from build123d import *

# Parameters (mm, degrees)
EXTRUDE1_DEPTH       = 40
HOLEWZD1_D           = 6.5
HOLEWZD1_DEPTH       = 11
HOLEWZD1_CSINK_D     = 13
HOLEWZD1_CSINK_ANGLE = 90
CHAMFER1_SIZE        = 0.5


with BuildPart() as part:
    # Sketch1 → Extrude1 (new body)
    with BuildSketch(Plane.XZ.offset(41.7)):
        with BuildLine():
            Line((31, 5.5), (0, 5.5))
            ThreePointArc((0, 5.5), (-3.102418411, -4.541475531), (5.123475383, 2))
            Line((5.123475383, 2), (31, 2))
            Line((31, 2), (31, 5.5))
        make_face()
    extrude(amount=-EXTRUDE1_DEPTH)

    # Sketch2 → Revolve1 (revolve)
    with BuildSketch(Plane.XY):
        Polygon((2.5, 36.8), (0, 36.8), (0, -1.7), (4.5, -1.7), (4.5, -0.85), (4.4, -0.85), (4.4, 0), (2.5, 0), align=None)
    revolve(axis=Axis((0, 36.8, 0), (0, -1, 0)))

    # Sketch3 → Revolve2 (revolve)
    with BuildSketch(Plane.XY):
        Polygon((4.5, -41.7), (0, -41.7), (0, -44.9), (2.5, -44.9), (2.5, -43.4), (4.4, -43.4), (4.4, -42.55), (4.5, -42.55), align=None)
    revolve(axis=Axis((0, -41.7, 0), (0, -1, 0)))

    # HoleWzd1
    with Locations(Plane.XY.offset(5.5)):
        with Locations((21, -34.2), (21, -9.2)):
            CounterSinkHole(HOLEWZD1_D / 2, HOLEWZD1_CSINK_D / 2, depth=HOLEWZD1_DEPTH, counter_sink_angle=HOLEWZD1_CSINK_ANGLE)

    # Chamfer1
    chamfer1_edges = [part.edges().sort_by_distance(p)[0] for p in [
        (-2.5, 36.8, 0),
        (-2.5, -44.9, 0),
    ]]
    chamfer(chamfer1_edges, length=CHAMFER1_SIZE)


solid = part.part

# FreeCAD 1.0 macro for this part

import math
import FreeCAD as App
import Part
import Sketcher

V = App.Vector
Q = App.Units.Quantity


def edges_at(feature, points):
    """Names of the edges that pass closest to the given points."""
    edges = feature.Shape.Edges
    near = lambda p: min(range(len(edges)), key=lambda i: edges[i].distToShape(Part.Vertex(*p))[0])
    return sorted({f"Edge{near(p) + 1}" for p in points})


def add_polygon(sketch, points):
    """Adds a closed chain of lines whose ends are joined by coincident constraints."""
    first, n = sketch.GeometryCount, len(points)
    for a, b in zip(points, points[1:] + points[:1]):
        sketch.addGeometry(Part.LineSegment(App.Vector(*a, 0), App.Vector(*b, 0)), False)
    for i in range(n):
        sketch.addConstraint(Sketcher.Constraint("Coincident", first + i, 2, first + (i + 1) % n, 1))

doc = App.newDocument("Part")
body = doc.addObject("PartDesign::Body", "Body")

# Sketch on XZ plane
sketch1 = body.newObject("Sketcher::SketchObject", "Sketch")
sketch1.AttachmentSupport = (doc.getObject("XZ_Plane"), [""])
sketch1.MapMode = "FlatFace"
sketch1.AttachmentOffset = App.Placement(V(0, 0, 41.7), App.Rotation())
sketch1.addGeometry([
    Part.LineSegment(V(31, 5.5, 0), V(0, 5.5, 0)),
    Part.ArcOfCircle(Part.Circle(V(0, 0, 0), V(0, 0, 1), 5.5), math.radians(90), math.radians(381.323686)),
    Part.LineSegment(V(5.123475, 2, 0), V(31, 2, 0)),
    Part.LineSegment(V(31, 2, 0), V(31, 5.5, 0)),
], False)
sketch1.addConstraint([
    Sketcher.Constraint("Tangent", 0, 2, 1, 1),
    Sketcher.Constraint("Coincident", 1, 2, 2, 1),
    Sketcher.Constraint("Coincident", 2, 2, 3, 1),
    Sketcher.Constraint("Coincident", 3, 2, 0, 1),
    Sketcher.Constraint("Horizontal", 0),
    Sketcher.Constraint("Horizontal", 2),
    Sketcher.Constraint("Vertical", 3),
    Sketcher.Constraint("Coincident", 1, 3, -1, 1),
    Sketcher.Constraint("Radius", 1, Q("5.5 mm")),
    Sketcher.Constraint("DistanceX", 0, 2, 0, 1, Q("31 mm")),
    Sketcher.Constraint("DistanceY", 3, 1, 3, 2, Q("3.5 mm")),
])
pad1 = body.newObject("PartDesign::Pad", "Pad")
pad1.Profile = sketch1
pad1.Length = 40
pad1.Reversed = True

# Sketch on XY plane
sketch2 = body.newObject("Sketcher::SketchObject", "Sketch001")
sketch2.AttachmentSupport = (doc.getObject("XY_Plane"), [""])
sketch2.MapMode = "FlatFace"
add_polygon(sketch2, [(2.5, 36.8), (0, 36.8), (0, -1.7), (4.5, -1.7), (4.5, -0.85), (4.4, -0.85), (4.4, 0), (2.5, 0)])  # lines 0-7
sketch2.addConstraint([
    Sketcher.Constraint("Horizontal", 0),
    Sketcher.Constraint("Vertical", 1),
    Sketcher.Constraint("Horizontal", 2),
    Sketcher.Constraint("Vertical", 3),
    Sketcher.Constraint("Horizontal", 4),
    Sketcher.Constraint("Vertical", 5),
    Sketcher.Constraint("Horizontal", 6),
    Sketcher.Constraint("Vertical", 7),
    Sketcher.Constraint("PointOnObject", 0, 2, -2),
    Sketcher.Constraint("PointOnObject", 5, 2, -1),
    Sketcher.Constraint("Equal", 3, 5),
    Sketcher.Constraint("DistanceX", 0, 2, 0, 1, Q("2.5 mm")),
    Sketcher.Constraint("DistanceX", 2, 1, 2, 2, Q("4.5 mm")),
    Sketcher.Constraint("DistanceX", 4, 2, 4, 1, Q("0.1 mm")),
    Sketcher.Constraint("DistanceY", 1, 2, 1, 1, Q("38.5 mm")),
    Sketcher.Constraint("DistanceY", 7, 1, 7, 2, Q("36.8 mm")),
])
revolution = body.newObject("PartDesign::Revolution", "Revolution")
revolution.Profile = sketch2
revolution.ReferenceAxis = (sketch2, ["V_Axis"])
revolution.Angle = 360

# Sketch on XY plane
sketch3 = body.newObject("Sketcher::SketchObject", "Sketch002")
sketch3.AttachmentSupport = (doc.getObject("XY_Plane"), [""])
sketch3.MapMode = "FlatFace"
add_polygon(sketch3, [(4.5, -41.7), (0, -41.7), (0, -44.9), (2.5, -44.9), (2.5, -43.4), (4.4, -43.4), (4.4, -42.55), (4.5, -42.55)])  # lines 0-7
sketch3.addConstraint([
    Sketcher.Constraint("Horizontal", 0),
    Sketcher.Constraint("Vertical", 1),
    Sketcher.Constraint("Horizontal", 2),
    Sketcher.Constraint("Vertical", 3),
    Sketcher.Constraint("Horizontal", 4),
    Sketcher.Constraint("Vertical", 5),
    Sketcher.Constraint("Horizontal", 6),
    Sketcher.Constraint("Vertical", 7),
    Sketcher.Constraint("PointOnObject", 0, 2, -2),
    Sketcher.Constraint("Equal", 5, 7),
    Sketcher.Constraint("DistanceX", 0, 2, 0, 1, Q("4.5 mm")),
    Sketcher.Constraint("DistanceX", 2, 1, 2, 2, Q("2.5 mm")),
    Sketcher.Constraint("DistanceX", 4, 1, 4, 2, Q("1.9 mm")),
    Sketcher.Constraint("DistanceY", 1, 2, 1, 1, Q("3.2 mm")),
    Sketcher.Constraint("DistanceY", 3, 1, 3, 2, Q("1.5 mm")),
    Sketcher.Constraint("DistanceY", 0, 2, -1, 1, Q("41.7 mm")),
])
revolution2 = body.newObject("PartDesign::Revolution", "Revolution001")
revolution2.Profile = sketch3
revolution2.ReferenceAxis = (sketch3, ["V_Axis"])
revolution2.Angle = 360

# Sketch on XY plane
sketch4 = body.newObject("Sketcher::SketchObject", "Sketch003")
sketch4.AttachmentSupport = (doc.getObject("XY_Plane"), [""])
sketch4.MapMode = "FlatFace"
sketch4.AttachmentOffset = App.Placement(V(0, 0, 5.5), App.Rotation())
sketch4.addGeometry([
    Part.Circle(V(21, -34.2, 0), V(0, 0, 1), 3.25),
    Part.Circle(V(21, -9.2, 0), V(0, 0, 1), 3.25),
], False)
sketch4.addConstraint([
    Sketcher.Constraint("Equal", 0, 1),
    Sketcher.Constraint("Vertical", 0, 3, 1, 3),
    Sketcher.Constraint("Diameter", 0, Q("6.5 mm")),
    Sketcher.Constraint("DistanceX", -1, 1, 0, 3, Q("21 mm")),
    Sketcher.Constraint("DistanceY", 0, 3, 1, 3, Q("25 mm")),
    Sketcher.Constraint("DistanceY", 0, 3, -1, 1, Q("34.2 mm")),
])
doc.recompute()
hole = body.newObject("PartDesign::Hole", "Hole")
hole.Profile = sketch4
hole.ThreadType = "None"
hole.Diameter = 6.5
hole.DepthType = "Dimension"
hole.Depth = 11
hole.DrillPoint = "Flat"
hole.HoleCutType = "Countersink"
hole.HoleCutDiameter = 13
hole.HoleCutCountersinkAngle = 90
doc.recompute()

chamfer = body.newObject("PartDesign::Chamfer", "Chamfer")
chamfer.Base = (hole, edges_at(hole, [(-2.5, 36.8, 0), (-2.5, -44.9, 0)]))
chamfer.Size = 0.5

doc.recompute()
